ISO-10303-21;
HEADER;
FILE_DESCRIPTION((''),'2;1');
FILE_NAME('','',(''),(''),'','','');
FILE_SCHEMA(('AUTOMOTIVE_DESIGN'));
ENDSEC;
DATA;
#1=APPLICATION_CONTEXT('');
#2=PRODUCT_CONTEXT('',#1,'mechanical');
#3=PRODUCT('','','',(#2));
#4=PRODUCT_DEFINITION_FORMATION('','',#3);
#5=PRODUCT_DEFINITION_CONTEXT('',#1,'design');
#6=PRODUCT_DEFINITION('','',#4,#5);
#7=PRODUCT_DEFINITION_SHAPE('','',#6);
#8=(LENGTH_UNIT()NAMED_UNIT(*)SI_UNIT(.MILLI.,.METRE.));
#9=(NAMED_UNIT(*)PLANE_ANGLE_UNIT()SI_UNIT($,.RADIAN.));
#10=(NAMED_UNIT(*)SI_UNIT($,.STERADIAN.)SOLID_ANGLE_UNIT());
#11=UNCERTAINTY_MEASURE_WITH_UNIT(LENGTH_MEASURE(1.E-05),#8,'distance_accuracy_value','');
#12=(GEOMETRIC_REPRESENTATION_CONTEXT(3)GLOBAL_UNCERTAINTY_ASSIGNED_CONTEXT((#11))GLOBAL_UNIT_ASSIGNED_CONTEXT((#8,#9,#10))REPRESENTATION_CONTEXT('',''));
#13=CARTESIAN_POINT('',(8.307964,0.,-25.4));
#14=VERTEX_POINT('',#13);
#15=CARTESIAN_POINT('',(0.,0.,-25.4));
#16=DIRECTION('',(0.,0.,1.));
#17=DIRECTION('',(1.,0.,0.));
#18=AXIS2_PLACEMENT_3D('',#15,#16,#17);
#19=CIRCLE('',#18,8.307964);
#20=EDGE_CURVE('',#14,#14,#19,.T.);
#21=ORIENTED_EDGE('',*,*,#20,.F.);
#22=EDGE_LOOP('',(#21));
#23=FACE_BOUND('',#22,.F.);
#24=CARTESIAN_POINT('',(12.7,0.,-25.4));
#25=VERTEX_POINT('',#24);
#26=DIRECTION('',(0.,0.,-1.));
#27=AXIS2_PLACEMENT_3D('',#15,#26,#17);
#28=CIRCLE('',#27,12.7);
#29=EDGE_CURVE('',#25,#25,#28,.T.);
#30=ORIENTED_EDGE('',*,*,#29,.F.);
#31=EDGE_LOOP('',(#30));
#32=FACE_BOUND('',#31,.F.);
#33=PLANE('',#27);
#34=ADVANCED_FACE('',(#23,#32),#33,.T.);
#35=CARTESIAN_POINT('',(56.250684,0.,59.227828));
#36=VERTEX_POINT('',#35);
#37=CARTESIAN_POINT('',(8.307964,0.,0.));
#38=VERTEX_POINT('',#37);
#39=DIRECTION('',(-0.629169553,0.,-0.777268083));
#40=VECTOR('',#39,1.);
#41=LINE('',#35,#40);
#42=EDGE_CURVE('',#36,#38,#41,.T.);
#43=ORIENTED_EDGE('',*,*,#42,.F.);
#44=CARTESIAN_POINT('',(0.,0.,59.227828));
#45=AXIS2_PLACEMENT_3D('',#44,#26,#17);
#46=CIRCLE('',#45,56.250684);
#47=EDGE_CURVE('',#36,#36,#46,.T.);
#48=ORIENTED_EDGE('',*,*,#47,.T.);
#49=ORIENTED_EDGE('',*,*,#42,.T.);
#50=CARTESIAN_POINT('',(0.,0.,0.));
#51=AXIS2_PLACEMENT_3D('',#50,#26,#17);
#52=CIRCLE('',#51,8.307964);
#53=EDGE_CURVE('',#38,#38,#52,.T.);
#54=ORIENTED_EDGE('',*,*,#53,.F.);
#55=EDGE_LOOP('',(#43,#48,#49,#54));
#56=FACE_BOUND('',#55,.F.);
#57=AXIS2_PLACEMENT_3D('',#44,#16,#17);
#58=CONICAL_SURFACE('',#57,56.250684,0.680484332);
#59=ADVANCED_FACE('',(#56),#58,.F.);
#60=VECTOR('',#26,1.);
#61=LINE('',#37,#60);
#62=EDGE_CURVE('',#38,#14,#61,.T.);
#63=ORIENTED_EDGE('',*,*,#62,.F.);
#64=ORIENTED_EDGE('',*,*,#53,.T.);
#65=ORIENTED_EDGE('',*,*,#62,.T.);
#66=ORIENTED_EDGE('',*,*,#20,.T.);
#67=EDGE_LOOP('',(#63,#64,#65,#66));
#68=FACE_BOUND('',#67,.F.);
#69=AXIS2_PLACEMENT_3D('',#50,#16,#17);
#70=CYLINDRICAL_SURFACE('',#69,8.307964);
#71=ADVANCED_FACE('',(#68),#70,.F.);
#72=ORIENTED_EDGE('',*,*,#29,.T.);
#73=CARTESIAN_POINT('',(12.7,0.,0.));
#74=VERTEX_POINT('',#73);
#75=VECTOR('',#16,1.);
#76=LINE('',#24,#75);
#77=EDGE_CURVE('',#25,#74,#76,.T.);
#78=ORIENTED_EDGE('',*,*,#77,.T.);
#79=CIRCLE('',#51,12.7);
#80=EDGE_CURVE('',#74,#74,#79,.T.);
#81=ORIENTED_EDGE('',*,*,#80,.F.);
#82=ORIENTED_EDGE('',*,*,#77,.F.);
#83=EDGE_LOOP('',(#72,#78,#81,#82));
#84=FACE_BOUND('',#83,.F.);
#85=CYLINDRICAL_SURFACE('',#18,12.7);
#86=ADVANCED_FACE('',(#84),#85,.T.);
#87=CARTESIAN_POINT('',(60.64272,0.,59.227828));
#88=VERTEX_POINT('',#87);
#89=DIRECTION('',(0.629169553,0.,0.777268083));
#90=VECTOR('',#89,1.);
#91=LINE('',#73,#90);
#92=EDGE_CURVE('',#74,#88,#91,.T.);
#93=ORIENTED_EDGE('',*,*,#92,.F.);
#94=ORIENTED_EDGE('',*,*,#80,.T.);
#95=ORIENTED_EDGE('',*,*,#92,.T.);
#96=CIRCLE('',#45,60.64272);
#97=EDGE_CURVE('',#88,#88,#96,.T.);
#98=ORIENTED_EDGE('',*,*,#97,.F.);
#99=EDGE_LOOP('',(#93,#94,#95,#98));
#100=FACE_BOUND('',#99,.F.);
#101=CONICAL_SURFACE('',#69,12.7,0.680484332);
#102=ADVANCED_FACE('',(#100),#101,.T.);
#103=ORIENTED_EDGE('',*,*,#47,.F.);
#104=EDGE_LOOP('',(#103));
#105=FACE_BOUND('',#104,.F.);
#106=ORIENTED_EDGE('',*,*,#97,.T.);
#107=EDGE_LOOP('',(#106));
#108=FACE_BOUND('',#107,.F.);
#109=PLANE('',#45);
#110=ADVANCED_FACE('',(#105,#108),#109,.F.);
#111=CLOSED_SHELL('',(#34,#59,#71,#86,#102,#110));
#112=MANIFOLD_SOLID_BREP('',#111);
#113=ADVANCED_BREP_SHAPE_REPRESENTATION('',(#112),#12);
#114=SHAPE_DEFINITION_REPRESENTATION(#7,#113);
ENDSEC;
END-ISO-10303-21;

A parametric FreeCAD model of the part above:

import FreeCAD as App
import Part
import Sketcher
Q = App.Units.Quantity

doc = App.newDocument("Part")
params = doc.addObject("Spreadsheet::Sheet", "Params")
for row, (alias, value) in enumerate([
    ("sketch1_height", "1 in"),
    ("sketch1_length", "3 in"),
    ("sketch1_width", "0.5 in"),
    ("revolution_angle", "360 deg"),
    ("pocket1_length", "2 in"),
], start=1):
    params.set(f"A{row}", alias)
    params.set(f"B{row}", "=" + value)
    params.setAlias(f"B{row}", alias)

body = doc.addObject("PartDesign::Body", "Body")

sketch1 = body.newObject("Sketcher::SketchObject", "Sketch")
sketch1.AttachmentSupport = (doc.getObject("XZ_Plane"), [""])
sketch1.MapMode = "FlatFace"
sketch1.addGeometry([
    Part.LineSegment(App.Vector(8.307964, 0, 0), App.Vector(0, 0, 0)),
    Part.LineSegment(App.Vector(0, 0, 0), App.Vector(0, -25.4, 0)),
    Part.LineSegment(App.Vector(0, -25.4, 0), App.Vector(12.7, -25.4, 0)),
    Part.LineSegment(App.Vector(12.7, -25.4, 0), App.Vector(12.7, 0, 0)),
    Part.LineSegment(App.Vector(12.7, 0, 0), App.Vector(60.64272, 59.227828, 0)),
    Part.LineSegment(App.Vector(60.64272, 59.227828, 0), App.Vector(56.250684, 59.227828, 0)),
    Part.LineSegment(App.Vector(56.250684, 59.227828, 0), App.Vector(8.307964, 0, 0)),
], False)
sketch1.addConstraint([
    Sketcher.Constraint("Coincident", 0, 2, 1, 1),
    Sketcher.Constraint("Coincident", 1, 2, 2, 1),
    Sketcher.Constraint("Coincident", 2, 2, 3, 1),
    Sketcher.Constraint("Coincident", 3, 2, 4, 1),
    Sketcher.Constraint("Coincident", 4, 2, 5, 1),
    Sketcher.Constraint("Coincident", 5, 2, 6, 1),
    Sketcher.Constraint("Coincident", 6, 2, 0, 1),
    Sketcher.Constraint("Horizontal", 0),
    Sketcher.Constraint("Vertical", 1),
    Sketcher.Constraint("Horizontal", 2),
    Sketcher.Constraint("Vertical", 3),
    Sketcher.Constraint("Horizontal", 5),
    Sketcher.Constraint("Coincident", 0, 2, -1, 1),
    Sketcher.Constraint("PointOnObject", 3, 2, -1),
    Sketcher.Constraint("Parallel", 4, 6),
    Sketcher.Constraint("DistanceY", 1, 2, 1, 1, Q("1 in")),
    Sketcher.Constraint("Distance", 4, Q("3 in")),
    Sketcher.Constraint("DistanceX", 2, 1, 2, 2, Q("0.5 in")),
    Sketcher.Constraint("DistanceX", 0, 2, 0, 1, 8.307964),
    Sketcher.Constraint("DistanceX", -1, 1, 4, 2, 60.64272),
])
sketch1.setExpression("Constraints[15]", "Params.sketch1_height")
sketch1.setExpression("Constraints[16]", "Params.sketch1_length")
sketch1.setExpression("Constraints[17]", "Params.sketch1_width")
revolution = body.newObject("PartDesign::Revolution", "Revolution")
revolution.Profile = sketch1
revolution.ReferenceAxis = (sketch1, ["V_Axis"])
revolution.setExpression("Angle", "Params.revolution_angle")

sketch2 = body.newObject("Sketcher::SketchObject", "Sketch001")
sketch2.AttachmentSupport = (doc.getObject("XY_Plane"), [""])
sketch2.MapMode = "FlatFace"
sketch2.addGeometry(Part.Circle(App.Vector(0, 0, 0), App.Vector(0, 0, 1), 8.307964), False)
sketch2.addConstraint([
    Sketcher.Constraint("Coincident", 0, 3, -1, 1),
    Sketcher.Constraint("Diameter", 0, 16.615928),
])
pocket1 = body.newObject("PartDesign::Pocket", "Pocket")
pocket1.Profile = sketch2
pocket1.setExpression("Length", "Params.pocket1_length")

doc.recompute()
